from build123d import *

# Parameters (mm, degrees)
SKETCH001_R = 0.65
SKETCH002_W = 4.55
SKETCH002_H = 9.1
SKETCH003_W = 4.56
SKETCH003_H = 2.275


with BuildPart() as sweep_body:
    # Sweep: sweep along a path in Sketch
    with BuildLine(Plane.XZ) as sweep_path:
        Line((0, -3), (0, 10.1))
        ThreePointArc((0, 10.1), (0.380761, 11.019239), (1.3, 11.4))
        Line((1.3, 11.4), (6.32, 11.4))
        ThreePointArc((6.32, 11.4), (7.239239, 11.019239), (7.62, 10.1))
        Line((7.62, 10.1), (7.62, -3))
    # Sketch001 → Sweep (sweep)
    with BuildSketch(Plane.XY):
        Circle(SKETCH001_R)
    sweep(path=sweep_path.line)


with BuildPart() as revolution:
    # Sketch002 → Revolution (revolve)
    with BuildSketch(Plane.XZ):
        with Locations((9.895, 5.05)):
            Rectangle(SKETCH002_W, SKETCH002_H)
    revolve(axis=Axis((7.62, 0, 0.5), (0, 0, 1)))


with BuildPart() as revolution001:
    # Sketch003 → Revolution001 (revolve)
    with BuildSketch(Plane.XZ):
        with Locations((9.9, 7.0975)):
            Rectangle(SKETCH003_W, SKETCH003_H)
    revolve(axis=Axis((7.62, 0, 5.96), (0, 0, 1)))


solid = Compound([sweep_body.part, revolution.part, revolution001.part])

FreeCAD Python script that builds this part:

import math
import FreeCAD as App
import Part
import Sketcher

V = App.Vector
Q = App.Units.Quantity

doc = App.newDocument("Part")
body = doc.addObject("PartDesign::Body", "Body")

# Sketch on XY plane
sketch1 = body.newObject("Sketcher::SketchObject", "Sketch")
sketch1.AttachmentSupport = (doc.getObject("XY_Plane"), [""])
sketch1.MapMode = "FlatFace"
sketch1.addGeometry(Part.Circle(V(0, 0, 0), V(0, 0, 1), 0.7), False)
sketch1.addConstraint([
    Sketcher.Constraint("Coincident", 0, 3, -1, 1),
    Sketcher.Constraint("Diameter", 0, Q("1.3 mm")),
])

# Sketch on XZ plane
sketch2 = body.newObject("Sketcher::SketchObject", "Sketch001")
sketch2.AttachmentSupport = (doc.getObject("XZ_Plane"), [""])
sketch2.MapMode = "FlatFace"
sketch2.addGeometry([
    Part.LineSegment(V(0, -3, 0), V(0, 10.1, 0)),  # 0
    Part.ArcOfCircle(Part.Circle(V(1.3, 10.1, 0), V(0, 0, 1), 1.3), math.radians(90), math.radians(180)),  # 1
    Part.LineSegment(V(1.3, 11.4, 0), V(6.3, 11.4, 0)),  # 2
    Part.ArcOfCircle(Part.Circle(V(6.3, 10.1, 0), V(0, 0, 1), 1.3), math.radians(0), math.radians(90)),  # 3
    Part.LineSegment(V(7.6, 10.1, 0), V(7.6, -3, 0)),  # 4
], False)
sketch2.addConstraint([
    Sketcher.Constraint("Tangent", 0, 2, 1, 2),
    Sketcher.Constraint("Tangent", 1, 1, 2, 1),
    Sketcher.Constraint("Tangent", 2, 2, 3, 2),
    Sketcher.Constraint("Tangent", 3, 1, 4, 1),
    Sketcher.Constraint("Vertical", 0),
    Sketcher.Constraint("Horizontal", 2),
    Sketcher.Constraint("Vertical", 4),
    Sketcher.Constraint("Equal", 1, 3),
    Sketcher.Constraint("PointOnObject", 0, 1, -2),
    Sketcher.Constraint("Horizontal", 0, 1, 4, 2),
    Sketcher.Constraint("Radius", 1, Q("1.299999 mm")),
    Sketcher.Constraint("DistanceY", 0, 1, 0, 2, Q("13.1 mm")),
    Sketcher.Constraint("DistanceY", 0, 1, -1, 1, Q("3 mm")),
    Sketcher.Constraint("DistanceX", 2, 1, 2, 2, Q("5.02 mm")),
])
doc.recompute()

additivepipe = body.newObject("PartDesign::AdditivePipe", "AdditivePipe")
additivepipe.Profile = sketch1
additivepipe.Spine = (sketch2, ["Edge1", "Edge2", "Edge3", "Edge4", "Edge5"])
body2 = doc.addObject("PartDesign::Body", "Body001")

# Sketch on XZ plane
sketch3 = body2.newObject("Sketcher::SketchObject", "Sketch002")
sketch3.AttachmentSupport = (doc.getObject("XZ_Plane001"), [""])
sketch3.MapMode = "FlatFace"
sketch3.addGeometry([
    Part.LineSegment(V(7.6, 9.6, 0), V(7.6, 0.5, 0)),
    Part.LineSegment(V(7.6, 0.5, 0), V(12.2, 0.5, 0)),
    Part.LineSegment(V(12.2, 0.5, 0), V(12.2, 9.6, 0)),
    Part.LineSegment(V(12.2, 9.6, 0), V(7.6, 9.6, 0)),
], False)
sketch3.addGeometry(Part.LineSegment(V(7.6, 0.5, 0), V(7.6, 9.6, 0)), True)  # axis
sketch3.addConstraint([
    Sketcher.Constraint("Coincident", 0, 2, 1, 1),
    Sketcher.Constraint("Coincident", 1, 2, 2, 1),
    Sketcher.Constraint("Coincident", 2, 2, 3, 1),
    Sketcher.Constraint("Coincident", 3, 2, 0, 1),
    Sketcher.Constraint("Vertical", 0),
    Sketcher.Constraint("Horizontal", 1),
    Sketcher.Constraint("Vertical", 2),
    Sketcher.Constraint("Horizontal", 3),
    Sketcher.Constraint("Vertical", 4),
    Sketcher.Constraint("Coincident", 4, 1, 0, 2),
    Sketcher.Constraint("Horizontal", 2, 2, 4, 2),
    Sketcher.Constraint("DistanceY", 0, 2, 0, 1, Q("9.1 mm")),
    Sketcher.Constraint("DistanceX", 1, 1, 1, 2, Q("4.55 mm")),
    Sketcher.Constraint("DistanceY", -1, 1, 0, 2, Q("0.5 mm")),
    Sketcher.Constraint("DistanceX", -1, 1, 0, 2, Q("7.62 mm")),
])
revolution = body2.newObject("PartDesign::Revolution", "Revolution")
revolution.Profile = sketch3
revolution.ReferenceAxis = (sketch3, ["Axis0"])
revolution.Angle = 360
body3 = doc.addObject("PartDesign::Body", "Body002")

# Sketch on XZ plane
sketch4 = body3.newObject("Sketcher::SketchObject", "Sketch003")
sketch4.AttachmentSupport = (doc.getObject("XZ_Plane002"), [""])
sketch4.MapMode = "FlatFace"
sketch4.addGeometry([
    Part.LineSegment(V(7.6, 8.2, 0), V(7.6, 6, 0)),
    Part.LineSegment(V(7.6, 6, 0), V(12.2, 6, 0)),
    Part.LineSegment(V(12.2, 6, 0), V(12.2, 8.2, 0)),
    Part.LineSegment(V(12.2, 8.2, 0), V(7.6, 8.2, 0)),
], False)
sketch4.addGeometry(Part.LineSegment(V(7.6, 6, 0), V(7.6, 8.2, 0)), True)  # axis
sketch4.addConstraint([
    Sketcher.Constraint("Coincident", 0, 2, 1, 1),
    Sketcher.Constraint("Coincident", 1, 2, 2, 1),
    Sketcher.Constraint("Coincident", 2, 2, 3, 1),
    Sketcher.Constraint("Coincident", 3, 2, 0, 1),
    Sketcher.Constraint("Vertical", 0),
    Sketcher.Constraint("Horizontal", 1),
    Sketcher.Constraint("Vertical", 2),
    Sketcher.Constraint("Horizontal", 3),
    Sketcher.Constraint("Vertical", 4),
    Sketcher.Constraint("Coincident", 4, 1, 0, 2),
    Sketcher.Constraint("Horizontal", 2, 2, 4, 2),
    Sketcher.Constraint("DistanceX", 1, 1, 1, 2, Q("4.56 mm")),
    Sketcher.Constraint("DistanceY", 0, 2, 0, 1, Q("2.275 mm")),
    Sketcher.Constraint("DistanceX", -1, 1, 0, 2, Q("7.62 mm")),
    Sketcher.Constraint("DistanceY", -1, 1, 0, 2, Q("5.96 mm")),
])
revolution2 = body3.newObject("PartDesign::Revolution", "Revolution001")
revolution2.Profile = sketch4
revolution2.ReferenceAxis = (sketch4, ["Axis0"])
revolution2.Angle = 360

doc.recompute()
